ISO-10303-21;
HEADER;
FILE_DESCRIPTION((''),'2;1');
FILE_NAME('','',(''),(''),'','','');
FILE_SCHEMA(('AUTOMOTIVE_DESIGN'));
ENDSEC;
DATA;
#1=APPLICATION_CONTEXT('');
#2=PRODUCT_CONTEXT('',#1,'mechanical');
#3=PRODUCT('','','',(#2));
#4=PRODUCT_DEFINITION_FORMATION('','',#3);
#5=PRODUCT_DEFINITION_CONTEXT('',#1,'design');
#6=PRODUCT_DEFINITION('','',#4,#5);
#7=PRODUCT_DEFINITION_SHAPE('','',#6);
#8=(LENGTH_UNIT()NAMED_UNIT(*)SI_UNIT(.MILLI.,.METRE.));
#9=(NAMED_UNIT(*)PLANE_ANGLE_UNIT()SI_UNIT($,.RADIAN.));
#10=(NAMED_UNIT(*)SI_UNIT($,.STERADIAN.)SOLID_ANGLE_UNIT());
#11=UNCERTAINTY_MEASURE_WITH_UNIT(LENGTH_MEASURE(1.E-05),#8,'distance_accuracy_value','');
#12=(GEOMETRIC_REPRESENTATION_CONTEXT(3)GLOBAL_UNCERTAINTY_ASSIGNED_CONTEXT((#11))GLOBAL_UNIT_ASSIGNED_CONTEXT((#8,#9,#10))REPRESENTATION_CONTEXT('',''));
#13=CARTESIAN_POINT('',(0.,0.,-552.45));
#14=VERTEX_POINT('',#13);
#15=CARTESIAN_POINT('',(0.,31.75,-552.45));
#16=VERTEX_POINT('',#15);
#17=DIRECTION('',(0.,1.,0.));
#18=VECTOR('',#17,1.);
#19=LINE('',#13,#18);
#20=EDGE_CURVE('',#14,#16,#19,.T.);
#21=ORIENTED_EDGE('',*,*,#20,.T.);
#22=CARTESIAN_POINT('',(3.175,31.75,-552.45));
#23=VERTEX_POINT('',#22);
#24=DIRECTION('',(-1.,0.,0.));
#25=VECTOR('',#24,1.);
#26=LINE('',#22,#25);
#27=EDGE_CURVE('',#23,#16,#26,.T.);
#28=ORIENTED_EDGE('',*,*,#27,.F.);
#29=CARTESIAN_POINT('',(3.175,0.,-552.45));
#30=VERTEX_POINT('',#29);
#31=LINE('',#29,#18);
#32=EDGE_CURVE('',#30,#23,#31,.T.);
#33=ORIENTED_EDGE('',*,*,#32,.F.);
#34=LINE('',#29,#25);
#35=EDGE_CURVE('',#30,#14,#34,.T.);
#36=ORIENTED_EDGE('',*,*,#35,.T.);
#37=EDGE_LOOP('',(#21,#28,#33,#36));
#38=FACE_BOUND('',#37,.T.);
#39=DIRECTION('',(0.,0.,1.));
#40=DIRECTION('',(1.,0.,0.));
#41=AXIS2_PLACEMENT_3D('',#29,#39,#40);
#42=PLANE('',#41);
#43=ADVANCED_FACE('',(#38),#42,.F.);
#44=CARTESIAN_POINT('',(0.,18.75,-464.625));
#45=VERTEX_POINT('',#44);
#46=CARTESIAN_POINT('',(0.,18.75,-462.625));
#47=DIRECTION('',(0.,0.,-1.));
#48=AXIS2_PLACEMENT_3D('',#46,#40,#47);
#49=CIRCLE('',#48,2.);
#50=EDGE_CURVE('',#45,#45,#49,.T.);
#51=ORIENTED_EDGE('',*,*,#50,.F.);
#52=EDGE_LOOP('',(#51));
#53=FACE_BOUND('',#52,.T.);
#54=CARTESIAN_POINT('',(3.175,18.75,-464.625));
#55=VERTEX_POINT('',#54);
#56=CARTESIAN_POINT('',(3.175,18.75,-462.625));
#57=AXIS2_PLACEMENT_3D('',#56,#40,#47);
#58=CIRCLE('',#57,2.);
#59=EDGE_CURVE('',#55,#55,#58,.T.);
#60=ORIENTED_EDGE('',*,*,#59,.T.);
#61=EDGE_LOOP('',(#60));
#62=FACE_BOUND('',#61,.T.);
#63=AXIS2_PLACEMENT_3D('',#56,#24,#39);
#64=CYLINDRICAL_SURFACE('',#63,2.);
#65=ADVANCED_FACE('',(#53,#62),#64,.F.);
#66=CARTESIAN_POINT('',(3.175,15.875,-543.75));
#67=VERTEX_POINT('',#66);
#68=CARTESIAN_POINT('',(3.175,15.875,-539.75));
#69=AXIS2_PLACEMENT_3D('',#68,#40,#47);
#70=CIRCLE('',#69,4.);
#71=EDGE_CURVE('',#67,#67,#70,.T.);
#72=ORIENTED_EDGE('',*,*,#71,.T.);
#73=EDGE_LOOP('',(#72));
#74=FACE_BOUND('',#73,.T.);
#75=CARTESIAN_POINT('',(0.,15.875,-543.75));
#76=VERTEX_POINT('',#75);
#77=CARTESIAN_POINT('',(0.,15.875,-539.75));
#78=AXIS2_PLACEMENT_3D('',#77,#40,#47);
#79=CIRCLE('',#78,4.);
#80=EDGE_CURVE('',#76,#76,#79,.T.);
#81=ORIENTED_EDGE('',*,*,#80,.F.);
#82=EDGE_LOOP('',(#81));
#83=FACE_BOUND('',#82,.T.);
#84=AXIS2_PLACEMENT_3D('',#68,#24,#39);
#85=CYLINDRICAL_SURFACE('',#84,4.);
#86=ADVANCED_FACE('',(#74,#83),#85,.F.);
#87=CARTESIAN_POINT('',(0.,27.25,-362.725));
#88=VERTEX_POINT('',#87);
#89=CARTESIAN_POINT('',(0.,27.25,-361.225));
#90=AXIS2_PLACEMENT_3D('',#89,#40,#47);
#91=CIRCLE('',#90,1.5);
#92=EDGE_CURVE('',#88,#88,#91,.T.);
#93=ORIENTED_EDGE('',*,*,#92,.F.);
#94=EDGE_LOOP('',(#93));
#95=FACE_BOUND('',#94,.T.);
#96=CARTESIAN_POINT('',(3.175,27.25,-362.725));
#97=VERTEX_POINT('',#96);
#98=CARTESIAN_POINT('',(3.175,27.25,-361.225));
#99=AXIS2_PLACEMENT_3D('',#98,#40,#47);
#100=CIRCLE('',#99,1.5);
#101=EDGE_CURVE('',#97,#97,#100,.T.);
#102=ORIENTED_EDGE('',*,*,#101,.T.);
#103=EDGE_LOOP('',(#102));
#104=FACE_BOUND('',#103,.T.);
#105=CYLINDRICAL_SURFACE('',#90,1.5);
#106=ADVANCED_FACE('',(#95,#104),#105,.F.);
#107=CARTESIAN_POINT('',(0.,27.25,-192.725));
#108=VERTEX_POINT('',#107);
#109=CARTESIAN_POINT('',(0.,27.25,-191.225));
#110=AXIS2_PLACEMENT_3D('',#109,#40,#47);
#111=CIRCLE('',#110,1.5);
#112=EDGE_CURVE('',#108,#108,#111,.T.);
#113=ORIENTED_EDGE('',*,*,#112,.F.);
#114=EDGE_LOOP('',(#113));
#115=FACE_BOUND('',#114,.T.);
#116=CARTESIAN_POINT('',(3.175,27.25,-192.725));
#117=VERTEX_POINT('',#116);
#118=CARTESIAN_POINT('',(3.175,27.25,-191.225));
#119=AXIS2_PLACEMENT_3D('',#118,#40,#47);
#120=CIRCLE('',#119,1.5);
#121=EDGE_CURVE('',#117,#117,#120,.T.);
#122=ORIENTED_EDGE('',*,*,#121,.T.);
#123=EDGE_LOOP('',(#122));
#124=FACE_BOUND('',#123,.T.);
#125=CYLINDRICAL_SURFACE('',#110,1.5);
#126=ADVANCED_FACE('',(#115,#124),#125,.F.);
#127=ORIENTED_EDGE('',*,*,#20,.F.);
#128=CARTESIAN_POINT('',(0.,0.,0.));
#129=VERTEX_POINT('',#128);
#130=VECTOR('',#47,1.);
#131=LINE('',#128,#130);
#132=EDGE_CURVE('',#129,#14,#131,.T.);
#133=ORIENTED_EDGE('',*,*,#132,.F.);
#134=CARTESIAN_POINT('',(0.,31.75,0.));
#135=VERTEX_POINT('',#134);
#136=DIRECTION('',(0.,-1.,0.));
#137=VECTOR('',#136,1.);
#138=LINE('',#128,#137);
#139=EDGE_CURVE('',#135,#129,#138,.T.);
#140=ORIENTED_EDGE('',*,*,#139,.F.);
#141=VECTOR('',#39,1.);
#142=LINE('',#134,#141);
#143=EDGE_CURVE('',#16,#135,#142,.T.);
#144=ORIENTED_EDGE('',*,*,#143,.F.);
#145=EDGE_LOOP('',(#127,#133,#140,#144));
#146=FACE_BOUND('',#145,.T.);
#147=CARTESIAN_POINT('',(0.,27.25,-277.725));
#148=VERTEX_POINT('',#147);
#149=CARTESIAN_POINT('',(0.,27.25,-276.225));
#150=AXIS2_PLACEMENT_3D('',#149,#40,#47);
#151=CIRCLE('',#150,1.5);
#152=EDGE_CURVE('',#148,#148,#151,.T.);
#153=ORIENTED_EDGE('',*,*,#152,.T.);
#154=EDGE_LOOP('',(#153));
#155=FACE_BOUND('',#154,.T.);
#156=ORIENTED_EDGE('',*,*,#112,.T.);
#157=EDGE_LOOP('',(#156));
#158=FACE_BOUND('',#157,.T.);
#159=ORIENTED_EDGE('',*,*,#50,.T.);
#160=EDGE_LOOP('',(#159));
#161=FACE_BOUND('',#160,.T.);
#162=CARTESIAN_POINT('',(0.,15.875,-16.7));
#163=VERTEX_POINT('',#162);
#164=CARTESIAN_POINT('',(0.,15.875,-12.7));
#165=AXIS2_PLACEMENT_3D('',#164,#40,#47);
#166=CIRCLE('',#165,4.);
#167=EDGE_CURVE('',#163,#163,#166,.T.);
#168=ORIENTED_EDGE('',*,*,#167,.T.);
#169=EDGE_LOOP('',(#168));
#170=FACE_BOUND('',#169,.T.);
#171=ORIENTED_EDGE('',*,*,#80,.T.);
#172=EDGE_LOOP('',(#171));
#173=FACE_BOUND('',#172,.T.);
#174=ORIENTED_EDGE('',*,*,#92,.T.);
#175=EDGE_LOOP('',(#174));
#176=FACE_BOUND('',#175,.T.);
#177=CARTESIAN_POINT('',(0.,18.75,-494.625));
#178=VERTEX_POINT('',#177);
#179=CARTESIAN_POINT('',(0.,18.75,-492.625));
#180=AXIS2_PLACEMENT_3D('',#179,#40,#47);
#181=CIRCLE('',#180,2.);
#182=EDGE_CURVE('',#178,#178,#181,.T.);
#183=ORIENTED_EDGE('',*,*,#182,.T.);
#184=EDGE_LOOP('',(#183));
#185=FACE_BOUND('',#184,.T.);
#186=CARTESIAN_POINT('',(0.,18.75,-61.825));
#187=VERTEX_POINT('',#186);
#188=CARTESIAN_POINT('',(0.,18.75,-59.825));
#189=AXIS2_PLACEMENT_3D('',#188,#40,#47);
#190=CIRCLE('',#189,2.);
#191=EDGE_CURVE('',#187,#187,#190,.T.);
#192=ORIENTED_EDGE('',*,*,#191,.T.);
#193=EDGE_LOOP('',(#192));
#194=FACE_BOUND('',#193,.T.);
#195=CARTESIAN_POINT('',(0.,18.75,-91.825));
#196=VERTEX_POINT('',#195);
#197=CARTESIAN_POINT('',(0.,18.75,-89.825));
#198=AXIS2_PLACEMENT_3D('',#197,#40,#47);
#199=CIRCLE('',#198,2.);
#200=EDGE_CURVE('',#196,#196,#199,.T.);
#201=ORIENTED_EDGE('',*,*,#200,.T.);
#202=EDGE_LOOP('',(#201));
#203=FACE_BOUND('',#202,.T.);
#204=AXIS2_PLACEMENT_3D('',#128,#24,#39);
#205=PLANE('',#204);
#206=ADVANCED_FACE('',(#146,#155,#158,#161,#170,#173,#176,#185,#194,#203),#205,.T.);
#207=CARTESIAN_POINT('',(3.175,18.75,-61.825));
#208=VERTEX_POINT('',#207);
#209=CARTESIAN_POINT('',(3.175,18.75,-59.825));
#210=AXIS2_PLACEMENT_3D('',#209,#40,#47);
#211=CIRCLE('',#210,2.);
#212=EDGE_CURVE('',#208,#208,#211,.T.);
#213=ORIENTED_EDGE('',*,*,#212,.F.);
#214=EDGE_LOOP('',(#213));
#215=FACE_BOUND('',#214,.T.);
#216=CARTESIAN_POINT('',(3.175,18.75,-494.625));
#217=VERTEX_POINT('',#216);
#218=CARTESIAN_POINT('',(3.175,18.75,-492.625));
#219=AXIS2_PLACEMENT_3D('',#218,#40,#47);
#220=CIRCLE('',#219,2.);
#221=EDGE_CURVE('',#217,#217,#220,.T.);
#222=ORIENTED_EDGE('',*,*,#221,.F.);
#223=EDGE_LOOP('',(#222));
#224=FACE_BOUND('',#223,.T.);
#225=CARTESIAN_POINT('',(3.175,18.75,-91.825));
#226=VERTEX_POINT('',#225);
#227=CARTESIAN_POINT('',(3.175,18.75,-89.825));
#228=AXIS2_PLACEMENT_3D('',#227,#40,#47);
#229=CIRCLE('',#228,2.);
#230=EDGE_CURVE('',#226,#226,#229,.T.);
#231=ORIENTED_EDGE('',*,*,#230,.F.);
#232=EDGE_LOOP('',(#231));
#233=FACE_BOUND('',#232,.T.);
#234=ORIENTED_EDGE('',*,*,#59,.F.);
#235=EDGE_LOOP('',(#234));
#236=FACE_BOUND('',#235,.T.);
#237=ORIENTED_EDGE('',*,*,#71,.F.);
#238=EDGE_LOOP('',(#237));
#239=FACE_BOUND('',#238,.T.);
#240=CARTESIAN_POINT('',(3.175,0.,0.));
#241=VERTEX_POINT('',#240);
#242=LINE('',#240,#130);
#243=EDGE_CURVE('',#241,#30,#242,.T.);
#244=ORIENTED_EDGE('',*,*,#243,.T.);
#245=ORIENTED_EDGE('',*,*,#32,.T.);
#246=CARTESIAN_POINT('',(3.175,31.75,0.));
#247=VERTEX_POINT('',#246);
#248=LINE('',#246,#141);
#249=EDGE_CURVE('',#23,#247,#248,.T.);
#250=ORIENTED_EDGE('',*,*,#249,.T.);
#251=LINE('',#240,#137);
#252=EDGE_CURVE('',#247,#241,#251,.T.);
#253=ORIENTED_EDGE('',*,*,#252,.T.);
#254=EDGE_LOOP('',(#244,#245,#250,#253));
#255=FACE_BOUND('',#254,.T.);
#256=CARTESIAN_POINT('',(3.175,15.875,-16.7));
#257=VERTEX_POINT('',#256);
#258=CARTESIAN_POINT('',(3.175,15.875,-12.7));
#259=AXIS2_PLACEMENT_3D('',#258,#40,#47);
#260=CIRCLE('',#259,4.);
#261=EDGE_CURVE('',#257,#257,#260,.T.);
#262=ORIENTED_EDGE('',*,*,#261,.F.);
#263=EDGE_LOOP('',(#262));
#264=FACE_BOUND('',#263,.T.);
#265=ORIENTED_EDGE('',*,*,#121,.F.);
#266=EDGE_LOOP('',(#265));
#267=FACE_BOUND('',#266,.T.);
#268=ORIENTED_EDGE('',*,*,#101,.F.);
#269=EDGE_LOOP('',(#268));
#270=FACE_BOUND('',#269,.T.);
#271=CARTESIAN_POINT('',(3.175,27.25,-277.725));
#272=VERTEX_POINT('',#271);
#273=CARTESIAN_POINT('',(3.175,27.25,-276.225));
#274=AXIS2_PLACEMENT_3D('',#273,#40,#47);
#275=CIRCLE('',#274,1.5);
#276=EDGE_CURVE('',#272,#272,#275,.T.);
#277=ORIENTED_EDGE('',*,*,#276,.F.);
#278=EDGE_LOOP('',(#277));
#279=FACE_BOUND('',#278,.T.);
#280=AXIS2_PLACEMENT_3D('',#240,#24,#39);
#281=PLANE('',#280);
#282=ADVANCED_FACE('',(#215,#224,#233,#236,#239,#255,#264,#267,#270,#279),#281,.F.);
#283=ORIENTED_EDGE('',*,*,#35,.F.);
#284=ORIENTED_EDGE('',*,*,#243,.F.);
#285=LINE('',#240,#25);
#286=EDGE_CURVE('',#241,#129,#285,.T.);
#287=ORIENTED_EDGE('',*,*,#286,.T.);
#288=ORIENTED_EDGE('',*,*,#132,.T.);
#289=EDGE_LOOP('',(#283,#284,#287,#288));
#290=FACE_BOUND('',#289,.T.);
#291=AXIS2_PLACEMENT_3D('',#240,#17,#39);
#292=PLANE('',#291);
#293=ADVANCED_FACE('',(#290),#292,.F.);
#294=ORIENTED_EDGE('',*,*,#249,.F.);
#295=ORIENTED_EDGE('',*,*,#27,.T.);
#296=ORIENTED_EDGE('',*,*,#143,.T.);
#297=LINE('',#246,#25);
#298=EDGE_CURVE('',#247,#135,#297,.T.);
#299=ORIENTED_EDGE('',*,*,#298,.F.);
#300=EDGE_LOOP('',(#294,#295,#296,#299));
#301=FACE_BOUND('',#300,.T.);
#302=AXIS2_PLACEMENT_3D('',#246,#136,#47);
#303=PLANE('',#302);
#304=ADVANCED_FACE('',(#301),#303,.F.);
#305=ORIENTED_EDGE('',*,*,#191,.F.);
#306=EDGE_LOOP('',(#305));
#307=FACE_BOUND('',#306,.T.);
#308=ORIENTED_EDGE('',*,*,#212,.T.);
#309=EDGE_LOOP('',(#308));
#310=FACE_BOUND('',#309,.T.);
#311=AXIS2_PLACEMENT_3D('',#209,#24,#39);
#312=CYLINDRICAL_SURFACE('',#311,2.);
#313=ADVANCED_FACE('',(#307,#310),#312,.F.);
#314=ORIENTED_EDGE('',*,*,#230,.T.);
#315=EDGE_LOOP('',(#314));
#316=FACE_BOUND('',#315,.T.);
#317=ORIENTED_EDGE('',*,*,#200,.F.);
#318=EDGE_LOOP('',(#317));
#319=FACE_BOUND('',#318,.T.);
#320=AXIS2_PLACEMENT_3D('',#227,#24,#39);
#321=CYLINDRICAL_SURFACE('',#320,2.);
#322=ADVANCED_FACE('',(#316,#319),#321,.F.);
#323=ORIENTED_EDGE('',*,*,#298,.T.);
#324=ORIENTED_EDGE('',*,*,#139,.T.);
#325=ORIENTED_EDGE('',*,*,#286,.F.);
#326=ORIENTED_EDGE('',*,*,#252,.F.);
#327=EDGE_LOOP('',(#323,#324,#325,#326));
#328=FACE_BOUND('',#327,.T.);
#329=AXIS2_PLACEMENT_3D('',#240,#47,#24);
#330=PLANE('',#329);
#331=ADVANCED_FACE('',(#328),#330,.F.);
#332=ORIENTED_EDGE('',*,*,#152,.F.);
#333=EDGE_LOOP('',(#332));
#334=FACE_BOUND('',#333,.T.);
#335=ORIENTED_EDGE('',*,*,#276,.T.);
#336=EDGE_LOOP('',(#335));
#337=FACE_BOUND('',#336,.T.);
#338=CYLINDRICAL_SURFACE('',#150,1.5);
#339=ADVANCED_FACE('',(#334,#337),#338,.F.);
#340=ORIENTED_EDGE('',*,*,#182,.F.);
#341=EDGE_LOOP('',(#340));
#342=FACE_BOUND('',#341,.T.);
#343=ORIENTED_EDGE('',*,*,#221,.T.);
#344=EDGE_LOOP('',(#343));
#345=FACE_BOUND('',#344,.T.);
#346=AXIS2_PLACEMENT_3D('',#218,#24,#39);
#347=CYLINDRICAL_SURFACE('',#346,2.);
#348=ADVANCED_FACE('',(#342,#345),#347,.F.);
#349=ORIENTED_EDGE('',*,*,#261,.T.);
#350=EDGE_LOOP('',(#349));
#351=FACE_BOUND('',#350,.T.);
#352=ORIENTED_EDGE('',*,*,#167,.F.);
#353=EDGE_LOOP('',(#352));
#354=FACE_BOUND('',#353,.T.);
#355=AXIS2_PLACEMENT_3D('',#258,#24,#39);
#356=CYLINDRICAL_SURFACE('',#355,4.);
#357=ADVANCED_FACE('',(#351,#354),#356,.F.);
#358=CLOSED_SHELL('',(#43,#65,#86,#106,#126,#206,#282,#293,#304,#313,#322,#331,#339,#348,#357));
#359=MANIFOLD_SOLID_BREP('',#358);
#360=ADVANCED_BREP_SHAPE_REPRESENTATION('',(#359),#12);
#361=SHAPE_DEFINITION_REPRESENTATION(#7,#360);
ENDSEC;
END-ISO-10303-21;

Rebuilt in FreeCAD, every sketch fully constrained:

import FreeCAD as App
import Part
import Sketcher

V = App.Vector
Q = App.Units.Quantity


def add_polygon(sketch, points):
    """Adds a closed chain of lines whose ends are joined by coincident constraints."""
    first, n = sketch.GeometryCount, len(points)
    for a, b in zip(points, points[1:] + points[:1]):
        sketch.addGeometry(Part.LineSegment(App.Vector(*a, 0), App.Vector(*b, 0)), False)
    for i in range(n):
        sketch.addConstraint(Sketcher.Constraint("Coincident", first + i, 2, first + (i + 1) % n, 1))

doc = App.newDocument("Part")
params = doc.addObject("Spreadsheet::Sheet", "Params")
for row, (alias, value) in enumerate([
    ("sketch1_diameter", "8 mm"),
    ("sketch1_diameter2", "4 mm"),
    ("sketch1_width", "31.75 mm"),
    ("sketch1_height", "552.45 mm"),
    ("pad1_length", "3.175 mm"),
    ("sketch2_diameter", "3 mm"),
], start=1):
    params.set(f"A{row}", alias)
    params.set(f"B{row}", "=" + value)
    params.setAlias(f"B{row}", alias)

body = doc.addObject("PartDesign::Body", "Body")

# Sketch on YZ plane
sketch1 = body.newObject("Sketcher::SketchObject", "Sketch")
sketch1.AttachmentSupport = (doc.getObject("YZ_Plane"), [""])
sketch1.MapMode = "FlatFace"
add_polygon(sketch1, [(31.8, 0), (0, 0), (0, -552.5), (31.8, -552.5)])  # lines 0-3
sketch1.addGeometry(Part.Circle(V(15.9, -12.7, 0), V(0, 0, 1), 4), False)  # 4
sketch1.addGeometry(Part.Circle(V(15.9, -539.8, 0), V(0, 0, 1), 4), False)  # 5
sketch1.addGeometry(Part.Circle(V(18.8, -59.8, 0), V(0, 0, 1), 2), False)  # 6
sketch1.addGeometry(Part.Circle(V(18.8, -89.8, 0), V(0, 0, 1), 2), False)  # 7
sketch1.addGeometry(Part.Circle(V(18.8, -462.6, 0), V(0, 0, 1), 2), False)  # 8
sketch1.addGeometry(Part.Circle(V(18.8, -492.6, 0), V(0, 0, 1), 2), False)  # 9
sketch1.addConstraint(Sketcher.Constraint("Horizontal", 0))
sketch1.addConstraint(Sketcher.Constraint("Vertical", 1))
sketch1.addConstraint(Sketcher.Constraint("Horizontal", 2))
sketch1.addConstraint(Sketcher.Constraint("Vertical", 3))
sketch1.addConstraint(Sketcher.Constraint("Coincident", 0, 2, -1, 1))
sketch1.addConstraint(Sketcher.Constraint("Equal", 4, 5))
sketch1.addConstraint(Sketcher.Constraint("Equal", 6, 7))
sketch1.addConstraint(Sketcher.Constraint("Equal", 7, 8))
sketch1.addConstraint(Sketcher.Constraint("Equal", 8, 9))
sketch1.addConstraint(Sketcher.Constraint("Vertical", 4, 3, 5, 3))
sketch1.addConstraint(Sketcher.Constraint("Vertical", 6, 3, 7, 3))
sketch1.addConstraint(Sketcher.Constraint("Vertical", 7, 3, 8, 3))
sketch1.addConstraint(Sketcher.Constraint("Vertical", 8, 3, 9, 3))
sketch1.addConstraint(Sketcher.Constraint("Diameter", 4, Q("8 mm")))
sketch1.addConstraint(Sketcher.Constraint("Diameter", 6, Q("4 mm")))
sketch1.addConstraint(Sketcher.Constraint("DistanceY", 7, 3, 6, 3, Q("30 mm")))
sketch1.addConstraint(Sketcher.Constraint("DistanceY", 9, 3, 8, 3, Q("30 mm")))
sketch1.addConstraint(Sketcher.Constraint("DistanceX", 9, 3, 2, 2, Q("13 mm")))
sketch1.addConstraint(Sketcher.Constraint("DistanceX", 0, 2, 0, 1, Q("31.75 mm")))
sketch1.addConstraint(Sketcher.Constraint("DistanceY", 1, 2, 1, 1, Q("552.45 mm")))
sketch1.addConstraint(Sketcher.Constraint("DistanceY", 4, 3, -1, 1, Q("12.7 mm")))
sketch1.addConstraint(Sketcher.Constraint("DistanceY", 8, 3, 7, 3, Q("372.8 mm")))
sketch1.addConstraint(Sketcher.Constraint("DistanceY", 1, 2, 5, 3, Q("12.7 mm")))
sketch1.addConstraint(Sketcher.Constraint("DistanceX", -1, 1, 4, 3, Q("15.875 mm")))
sketch1.addConstraint(Sketcher.Constraint("DistanceY", 6, 3, -1, 1, Q("59.825 mm")))
sketch1.setExpression("Constraints[17]", "Params.sketch1_diameter")
sketch1.setExpression("Constraints[18]", "Params.sketch1_diameter2")
sketch1.setExpression("Constraints[22]", "Params.sketch1_width")
sketch1.setExpression("Constraints[23]", "Params.sketch1_height")
pad1 = body.newObject("PartDesign::Pad", "Pad")
pad1.Profile = sketch1
pad1.setExpression("Length", "Params.pad1_length")

# Sketch on YZ plane
sketch2 = body.newObject("Sketcher::SketchObject", "Sketch001")
sketch2.AttachmentSupport = (doc.getObject("YZ_Plane"), [""])
sketch2.MapMode = "FlatFace"
sketch2.AttachmentOffset = App.Placement(V(0, 0, 3.175), App.Rotation())
sketch2.addGeometry(Part.Circle(V(27.2, -191.2, 0), V(0, 0, 1), 1.5), False)
sketch2.addGeometry(Part.Circle(V(27.2, -276.2, 0), V(0, 0, 1), 1.5), False)
sketch2.addGeometry(Part.Circle(V(27.2, -361.2, 0), V(0, 0, 1), 1.5), False)
sketch2.addConstraint(Sketcher.Constraint("Equal", 0, 1))
sketch2.addConstraint(Sketcher.Constraint("Equal", 1, 2))
sketch2.addConstraint(Sketcher.Constraint("Vertical", 0, 3, 1, 3))
sketch2.addConstraint(Sketcher.Constraint("Vertical", 1, 3, 2, 3))
sketch2.addConstraint(Sketcher.Constraint("Diameter", 0, Q("3 mm")))
sketch2.addConstraint(Sketcher.Constraint("DistanceY", 1, 3, 0, 3, Q("85 mm")))
sketch2.addConstraint(Sketcher.Constraint("DistanceY", 2, 3, 1, 3, Q("85 mm")))
sketch2.addConstraint(Sketcher.Constraint("DistanceX", -1, 1, 0, 3, Q("27.25 mm")))
sketch2.addConstraint(Sketcher.Constraint("DistanceY", 0, 3, -1, 1, Q("191.225 mm")))
sketch2.setExpression("Constraints[4]", "Params.sketch2_diameter")
pocket1 = body.newObject("PartDesign::Pocket", "Pocket")
pocket1.Profile = sketch2
pocket1.Type = "ThroughAll"

doc.recompute()
